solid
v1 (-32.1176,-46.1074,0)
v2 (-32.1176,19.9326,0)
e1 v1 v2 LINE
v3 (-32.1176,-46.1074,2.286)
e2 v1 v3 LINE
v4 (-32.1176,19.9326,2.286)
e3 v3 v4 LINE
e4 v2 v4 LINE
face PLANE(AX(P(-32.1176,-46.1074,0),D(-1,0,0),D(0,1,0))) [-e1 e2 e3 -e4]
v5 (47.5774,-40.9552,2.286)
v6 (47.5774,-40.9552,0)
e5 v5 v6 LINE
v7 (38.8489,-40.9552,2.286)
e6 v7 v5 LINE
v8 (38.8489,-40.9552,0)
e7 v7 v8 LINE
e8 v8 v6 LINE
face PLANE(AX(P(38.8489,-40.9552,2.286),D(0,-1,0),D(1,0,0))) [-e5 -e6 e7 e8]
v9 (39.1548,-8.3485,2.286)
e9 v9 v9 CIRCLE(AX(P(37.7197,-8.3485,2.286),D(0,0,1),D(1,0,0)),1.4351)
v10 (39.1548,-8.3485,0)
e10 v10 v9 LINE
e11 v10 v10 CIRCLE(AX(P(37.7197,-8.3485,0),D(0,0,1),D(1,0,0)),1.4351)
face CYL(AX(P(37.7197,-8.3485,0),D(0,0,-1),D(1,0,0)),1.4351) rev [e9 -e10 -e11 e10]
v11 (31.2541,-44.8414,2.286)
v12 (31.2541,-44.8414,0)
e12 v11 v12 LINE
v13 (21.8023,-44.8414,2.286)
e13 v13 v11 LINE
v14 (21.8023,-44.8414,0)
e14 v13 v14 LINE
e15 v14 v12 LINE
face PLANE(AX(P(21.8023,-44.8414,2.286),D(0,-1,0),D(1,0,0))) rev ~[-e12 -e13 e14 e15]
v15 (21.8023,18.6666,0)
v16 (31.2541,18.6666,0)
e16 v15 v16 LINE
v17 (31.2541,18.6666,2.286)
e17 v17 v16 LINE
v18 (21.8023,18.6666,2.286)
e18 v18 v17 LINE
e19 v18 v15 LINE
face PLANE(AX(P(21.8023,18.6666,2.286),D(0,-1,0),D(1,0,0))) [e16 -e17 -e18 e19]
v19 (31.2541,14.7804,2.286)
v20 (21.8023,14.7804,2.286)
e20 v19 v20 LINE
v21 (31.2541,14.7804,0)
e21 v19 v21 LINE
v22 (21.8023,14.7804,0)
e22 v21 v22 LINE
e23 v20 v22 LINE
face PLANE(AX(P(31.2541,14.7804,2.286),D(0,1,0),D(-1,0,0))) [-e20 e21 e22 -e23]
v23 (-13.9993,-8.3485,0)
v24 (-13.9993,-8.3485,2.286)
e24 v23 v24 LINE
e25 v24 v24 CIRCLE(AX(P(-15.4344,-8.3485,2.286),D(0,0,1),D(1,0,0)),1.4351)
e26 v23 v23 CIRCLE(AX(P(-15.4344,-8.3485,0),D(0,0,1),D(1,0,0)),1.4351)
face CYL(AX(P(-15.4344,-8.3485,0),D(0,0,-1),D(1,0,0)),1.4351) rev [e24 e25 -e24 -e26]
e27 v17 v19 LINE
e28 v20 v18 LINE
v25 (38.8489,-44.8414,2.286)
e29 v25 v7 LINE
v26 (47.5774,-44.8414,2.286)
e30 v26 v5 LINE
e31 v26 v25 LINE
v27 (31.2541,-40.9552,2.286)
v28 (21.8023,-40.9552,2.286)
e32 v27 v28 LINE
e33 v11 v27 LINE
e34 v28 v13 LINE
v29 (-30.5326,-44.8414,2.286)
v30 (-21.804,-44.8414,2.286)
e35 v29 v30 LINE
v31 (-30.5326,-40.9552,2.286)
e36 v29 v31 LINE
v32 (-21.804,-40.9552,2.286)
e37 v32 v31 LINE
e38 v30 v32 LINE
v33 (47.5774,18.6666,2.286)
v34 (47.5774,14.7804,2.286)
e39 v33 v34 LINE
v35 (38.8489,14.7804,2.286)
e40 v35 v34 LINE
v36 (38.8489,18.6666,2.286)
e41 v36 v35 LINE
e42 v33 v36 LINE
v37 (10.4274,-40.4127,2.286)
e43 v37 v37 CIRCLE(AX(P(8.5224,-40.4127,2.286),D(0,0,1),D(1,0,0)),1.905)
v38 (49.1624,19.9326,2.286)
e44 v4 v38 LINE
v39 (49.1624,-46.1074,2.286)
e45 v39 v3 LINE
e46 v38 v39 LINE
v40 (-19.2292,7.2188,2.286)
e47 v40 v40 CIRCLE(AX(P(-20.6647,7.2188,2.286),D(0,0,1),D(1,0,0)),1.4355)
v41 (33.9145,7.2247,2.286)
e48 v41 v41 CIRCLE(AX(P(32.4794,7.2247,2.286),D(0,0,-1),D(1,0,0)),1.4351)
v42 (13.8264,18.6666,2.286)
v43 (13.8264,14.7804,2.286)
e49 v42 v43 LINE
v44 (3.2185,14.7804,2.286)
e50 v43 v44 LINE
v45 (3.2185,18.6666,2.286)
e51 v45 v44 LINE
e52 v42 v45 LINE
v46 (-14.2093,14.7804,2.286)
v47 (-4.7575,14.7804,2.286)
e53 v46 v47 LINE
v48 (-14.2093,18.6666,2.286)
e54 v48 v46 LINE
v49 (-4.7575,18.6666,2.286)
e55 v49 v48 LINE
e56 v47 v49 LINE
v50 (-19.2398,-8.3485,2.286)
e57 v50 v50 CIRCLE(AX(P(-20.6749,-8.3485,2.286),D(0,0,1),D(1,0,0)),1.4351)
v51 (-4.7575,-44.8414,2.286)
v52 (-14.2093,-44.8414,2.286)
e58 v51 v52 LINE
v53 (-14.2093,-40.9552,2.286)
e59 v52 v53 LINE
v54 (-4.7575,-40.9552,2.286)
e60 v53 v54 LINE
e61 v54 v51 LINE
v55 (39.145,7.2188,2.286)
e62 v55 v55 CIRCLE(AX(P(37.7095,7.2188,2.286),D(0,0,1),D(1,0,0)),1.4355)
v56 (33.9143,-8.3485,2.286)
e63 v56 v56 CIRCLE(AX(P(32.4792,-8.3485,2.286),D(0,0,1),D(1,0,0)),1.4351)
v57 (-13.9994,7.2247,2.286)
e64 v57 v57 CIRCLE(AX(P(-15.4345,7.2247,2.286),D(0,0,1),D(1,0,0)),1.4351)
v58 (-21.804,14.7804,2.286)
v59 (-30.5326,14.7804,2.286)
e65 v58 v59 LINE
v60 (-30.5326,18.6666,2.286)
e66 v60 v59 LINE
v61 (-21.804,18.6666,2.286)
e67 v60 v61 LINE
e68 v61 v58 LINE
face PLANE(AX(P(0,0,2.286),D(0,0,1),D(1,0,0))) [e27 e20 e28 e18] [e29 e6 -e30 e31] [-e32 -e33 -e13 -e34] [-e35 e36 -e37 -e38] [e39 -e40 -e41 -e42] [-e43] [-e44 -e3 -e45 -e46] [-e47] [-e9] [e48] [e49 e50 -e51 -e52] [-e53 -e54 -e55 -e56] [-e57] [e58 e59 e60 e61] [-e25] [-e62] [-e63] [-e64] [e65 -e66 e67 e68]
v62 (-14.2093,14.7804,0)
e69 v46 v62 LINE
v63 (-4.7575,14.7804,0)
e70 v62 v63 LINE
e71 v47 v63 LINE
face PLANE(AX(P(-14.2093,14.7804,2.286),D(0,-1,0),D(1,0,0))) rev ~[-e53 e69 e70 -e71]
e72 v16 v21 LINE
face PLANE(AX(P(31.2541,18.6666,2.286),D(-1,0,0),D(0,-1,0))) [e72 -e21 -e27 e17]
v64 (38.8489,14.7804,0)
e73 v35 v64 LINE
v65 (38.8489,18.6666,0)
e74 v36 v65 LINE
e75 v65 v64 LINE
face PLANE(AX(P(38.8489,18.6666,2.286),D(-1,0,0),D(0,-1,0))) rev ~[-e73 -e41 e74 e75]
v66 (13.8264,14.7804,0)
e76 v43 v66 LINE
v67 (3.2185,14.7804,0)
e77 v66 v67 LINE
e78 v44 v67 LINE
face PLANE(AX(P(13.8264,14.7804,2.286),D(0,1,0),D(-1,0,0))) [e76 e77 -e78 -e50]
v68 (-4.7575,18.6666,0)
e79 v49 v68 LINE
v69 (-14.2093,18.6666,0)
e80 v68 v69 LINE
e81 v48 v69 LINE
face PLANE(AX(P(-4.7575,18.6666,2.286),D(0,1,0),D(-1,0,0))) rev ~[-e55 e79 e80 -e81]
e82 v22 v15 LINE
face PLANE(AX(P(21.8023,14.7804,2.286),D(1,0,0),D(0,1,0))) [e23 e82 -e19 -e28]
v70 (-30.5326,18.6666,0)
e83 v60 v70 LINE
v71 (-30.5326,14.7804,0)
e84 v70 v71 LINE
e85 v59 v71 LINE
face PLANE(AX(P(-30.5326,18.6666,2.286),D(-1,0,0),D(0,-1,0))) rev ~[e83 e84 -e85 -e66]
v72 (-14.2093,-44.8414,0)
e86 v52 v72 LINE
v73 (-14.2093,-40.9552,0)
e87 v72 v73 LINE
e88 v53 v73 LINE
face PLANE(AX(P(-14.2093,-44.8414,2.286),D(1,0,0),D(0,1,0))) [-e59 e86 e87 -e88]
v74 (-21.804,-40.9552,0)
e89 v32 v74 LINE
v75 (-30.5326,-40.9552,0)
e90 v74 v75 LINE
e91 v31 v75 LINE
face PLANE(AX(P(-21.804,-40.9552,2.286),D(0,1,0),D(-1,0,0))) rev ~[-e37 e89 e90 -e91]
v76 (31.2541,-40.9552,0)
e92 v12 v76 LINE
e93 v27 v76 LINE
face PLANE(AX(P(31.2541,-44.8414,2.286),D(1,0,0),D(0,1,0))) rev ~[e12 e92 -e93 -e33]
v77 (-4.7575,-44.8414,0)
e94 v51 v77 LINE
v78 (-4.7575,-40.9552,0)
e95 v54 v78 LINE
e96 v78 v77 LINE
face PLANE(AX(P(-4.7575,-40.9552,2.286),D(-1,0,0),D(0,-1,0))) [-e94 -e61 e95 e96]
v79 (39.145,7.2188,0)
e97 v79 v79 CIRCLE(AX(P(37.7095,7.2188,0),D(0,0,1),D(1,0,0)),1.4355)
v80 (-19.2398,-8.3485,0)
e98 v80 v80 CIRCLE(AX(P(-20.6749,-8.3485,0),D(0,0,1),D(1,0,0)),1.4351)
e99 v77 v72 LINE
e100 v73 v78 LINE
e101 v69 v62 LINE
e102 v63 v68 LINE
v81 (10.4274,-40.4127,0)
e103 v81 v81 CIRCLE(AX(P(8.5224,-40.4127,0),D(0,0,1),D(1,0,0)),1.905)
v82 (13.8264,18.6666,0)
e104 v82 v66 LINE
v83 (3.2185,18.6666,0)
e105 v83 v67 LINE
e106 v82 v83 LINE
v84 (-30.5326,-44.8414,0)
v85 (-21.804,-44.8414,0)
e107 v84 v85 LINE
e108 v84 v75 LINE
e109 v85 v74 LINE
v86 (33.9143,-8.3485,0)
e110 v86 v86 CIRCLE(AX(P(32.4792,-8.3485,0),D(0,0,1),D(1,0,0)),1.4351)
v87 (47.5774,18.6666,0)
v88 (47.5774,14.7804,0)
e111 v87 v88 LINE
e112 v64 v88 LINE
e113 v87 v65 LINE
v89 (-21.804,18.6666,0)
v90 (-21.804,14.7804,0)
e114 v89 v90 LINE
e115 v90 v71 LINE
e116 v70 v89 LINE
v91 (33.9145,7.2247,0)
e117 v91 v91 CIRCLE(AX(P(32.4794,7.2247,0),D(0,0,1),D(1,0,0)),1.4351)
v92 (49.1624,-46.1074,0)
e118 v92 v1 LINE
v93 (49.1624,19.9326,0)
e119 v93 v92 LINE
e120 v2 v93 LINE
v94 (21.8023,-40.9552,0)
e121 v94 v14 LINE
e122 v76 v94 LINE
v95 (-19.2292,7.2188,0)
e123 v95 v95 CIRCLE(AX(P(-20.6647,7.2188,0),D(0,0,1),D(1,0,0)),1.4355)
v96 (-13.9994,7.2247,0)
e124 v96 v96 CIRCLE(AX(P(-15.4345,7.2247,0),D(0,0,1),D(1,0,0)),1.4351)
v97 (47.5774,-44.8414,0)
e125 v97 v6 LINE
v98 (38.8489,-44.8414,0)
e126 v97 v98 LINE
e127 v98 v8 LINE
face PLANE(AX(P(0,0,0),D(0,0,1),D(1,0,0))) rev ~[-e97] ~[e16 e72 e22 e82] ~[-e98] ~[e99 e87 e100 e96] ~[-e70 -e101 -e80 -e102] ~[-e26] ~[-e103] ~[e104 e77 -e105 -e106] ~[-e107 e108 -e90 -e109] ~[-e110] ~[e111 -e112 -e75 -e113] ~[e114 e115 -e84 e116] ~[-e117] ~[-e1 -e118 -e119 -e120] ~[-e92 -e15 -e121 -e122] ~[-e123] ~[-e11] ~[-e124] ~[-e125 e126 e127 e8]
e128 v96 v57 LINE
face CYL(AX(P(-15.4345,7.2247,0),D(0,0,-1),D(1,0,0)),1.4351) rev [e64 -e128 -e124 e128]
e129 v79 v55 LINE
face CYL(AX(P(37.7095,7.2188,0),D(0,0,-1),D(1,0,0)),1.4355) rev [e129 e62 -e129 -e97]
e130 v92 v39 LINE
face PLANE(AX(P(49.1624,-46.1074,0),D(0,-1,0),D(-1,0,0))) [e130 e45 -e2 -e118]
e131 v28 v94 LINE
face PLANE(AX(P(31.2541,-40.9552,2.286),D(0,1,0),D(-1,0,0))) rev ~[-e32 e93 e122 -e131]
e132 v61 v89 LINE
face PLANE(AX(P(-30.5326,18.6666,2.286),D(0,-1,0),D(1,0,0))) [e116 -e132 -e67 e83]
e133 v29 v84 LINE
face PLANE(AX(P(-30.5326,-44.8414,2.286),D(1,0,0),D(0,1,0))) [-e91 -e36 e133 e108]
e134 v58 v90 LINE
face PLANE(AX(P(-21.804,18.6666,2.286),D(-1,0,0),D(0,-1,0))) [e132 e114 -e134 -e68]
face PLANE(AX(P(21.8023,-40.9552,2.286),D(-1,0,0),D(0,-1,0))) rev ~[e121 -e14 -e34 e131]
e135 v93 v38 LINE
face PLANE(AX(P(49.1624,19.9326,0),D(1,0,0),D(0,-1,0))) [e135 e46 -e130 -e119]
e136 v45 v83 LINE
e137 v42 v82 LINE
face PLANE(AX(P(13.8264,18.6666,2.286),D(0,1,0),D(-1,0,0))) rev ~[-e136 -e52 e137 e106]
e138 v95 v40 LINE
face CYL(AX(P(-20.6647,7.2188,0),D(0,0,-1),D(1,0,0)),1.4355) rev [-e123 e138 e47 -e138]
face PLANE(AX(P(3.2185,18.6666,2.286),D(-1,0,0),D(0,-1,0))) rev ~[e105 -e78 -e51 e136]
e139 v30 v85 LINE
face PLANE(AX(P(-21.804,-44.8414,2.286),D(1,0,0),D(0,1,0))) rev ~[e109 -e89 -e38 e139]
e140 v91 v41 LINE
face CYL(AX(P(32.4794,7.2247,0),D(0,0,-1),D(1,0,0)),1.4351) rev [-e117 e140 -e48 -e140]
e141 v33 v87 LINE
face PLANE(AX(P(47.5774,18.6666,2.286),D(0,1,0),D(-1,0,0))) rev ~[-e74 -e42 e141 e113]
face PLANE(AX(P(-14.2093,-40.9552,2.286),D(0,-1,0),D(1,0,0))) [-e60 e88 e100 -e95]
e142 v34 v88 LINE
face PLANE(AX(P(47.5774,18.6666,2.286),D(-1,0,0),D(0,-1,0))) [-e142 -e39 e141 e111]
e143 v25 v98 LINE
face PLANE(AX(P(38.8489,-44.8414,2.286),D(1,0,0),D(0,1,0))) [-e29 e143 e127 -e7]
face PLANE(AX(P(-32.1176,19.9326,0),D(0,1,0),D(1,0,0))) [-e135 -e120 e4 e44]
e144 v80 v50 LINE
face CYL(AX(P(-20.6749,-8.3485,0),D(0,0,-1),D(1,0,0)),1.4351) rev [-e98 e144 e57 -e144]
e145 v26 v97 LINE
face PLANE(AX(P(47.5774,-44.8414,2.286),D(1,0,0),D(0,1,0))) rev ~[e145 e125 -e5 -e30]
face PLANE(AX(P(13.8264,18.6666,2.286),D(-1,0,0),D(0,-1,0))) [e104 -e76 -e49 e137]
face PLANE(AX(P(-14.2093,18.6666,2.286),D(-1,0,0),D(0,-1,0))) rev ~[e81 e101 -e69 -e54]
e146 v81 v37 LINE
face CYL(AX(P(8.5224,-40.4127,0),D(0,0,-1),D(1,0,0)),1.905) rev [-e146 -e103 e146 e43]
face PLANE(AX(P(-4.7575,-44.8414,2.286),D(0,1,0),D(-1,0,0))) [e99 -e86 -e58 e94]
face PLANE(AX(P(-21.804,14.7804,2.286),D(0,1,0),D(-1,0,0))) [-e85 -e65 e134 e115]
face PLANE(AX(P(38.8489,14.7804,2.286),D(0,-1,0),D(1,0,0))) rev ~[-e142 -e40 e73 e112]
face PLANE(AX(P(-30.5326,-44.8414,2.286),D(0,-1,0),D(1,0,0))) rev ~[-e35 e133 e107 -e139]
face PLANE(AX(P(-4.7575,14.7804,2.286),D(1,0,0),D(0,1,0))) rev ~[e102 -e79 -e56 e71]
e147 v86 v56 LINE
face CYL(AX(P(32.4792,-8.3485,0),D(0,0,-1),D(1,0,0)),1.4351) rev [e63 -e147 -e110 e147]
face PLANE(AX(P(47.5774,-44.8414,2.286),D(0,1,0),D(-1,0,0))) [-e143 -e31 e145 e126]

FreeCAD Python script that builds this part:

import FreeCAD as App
import Part
import Sketcher

V = App.Vector
Q = App.Units.Quantity


def add_polygon(sketch, points):
    """Adds a closed chain of lines whose ends are joined by coincident constraints."""
    first, n = sketch.GeometryCount, len(points)
    for a, b in zip(points, points[1:] + points[:1]):
        sketch.addGeometry(Part.LineSegment(App.Vector(*a, 0), App.Vector(*b, 0)), False)
    for i in range(n):
        sketch.addConstraint(Sketcher.Constraint("Coincident", first + i, 2, first + (i + 1) % n, 1))

doc = App.newDocument("Part")
body = doc.addObject("PartDesign::Body", "Body")

sketch1 = doc.addObject("Sketcher::SketchObject", "Sketch")
body.addObject(sketch1)
sketch1.AttachmentSupport = (doc.XY_Plane, [""])
sketch1.MapMode = "FlatFace"
add_polygon(sketch1, [(49.2, 19.9), (-32.1, 19.9), (-32.1, -46.1), (49.2, -46.1)])
sketch1.addGeometry(Part.Circle(V(8.5, -40.4, 0), V(0, 0, 1), 1.9), False)
sketch1.addGeometry(Part.Circle(V(-20.7, -8.3, 0), V(0, 0, 1), 1.4), False)
sketch1.addGeometry(Part.Circle(V(-15.4, -8.3, 0), V(0, 0, 1), 1.4), False)
sketch1.addGeometry(Part.Circle(V(-20.7, 7.2, 0), V(0, 0, 1), 1.4), False)
sketch1.addGeometry(Part.Circle(V(-15.4, 7.2, 0), V(0, 0, 1), 1.4), False)
sketch1.addGeometry(Part.Circle(V(32.5, -8.3, 0), V(0, 0, 1), 1.4), False)
sketch1.addGeometry(Part.Circle(V(37.7, -8.3, 0), V(0, 0, 1), 1.4), False)
sketch1.addGeometry(Part.Circle(V(32.5, 7.2, 0), V(0, 0, 1), 1.4), False)
sketch1.addGeometry(Part.Circle(V(37.7, 7.2, 0), V(0, 0, 1), 1.4), False)
sketch1.addConstraint(Sketcher.Constraint("Horizontal", 0))
sketch1.addConstraint(Sketcher.Constraint("Vertical", 1))
sketch1.addConstraint(Sketcher.Constraint("Horizontal", 2))
sketch1.addConstraint(Sketcher.Constraint("Vertical", 3))
sketch1.addConstraint(Sketcher.Constraint("Equal", 5, 6))
sketch1.addConstraint(Sketcher.Constraint("Equal", 6, 8))
sketch1.addConstraint(Sketcher.Constraint("Equal", 8, 9))
sketch1.addConstraint(Sketcher.Constraint("Equal", 9, 10))
sketch1.addConstraint(Sketcher.Constraint("Equal", 10, 11))
sketch1.addConstraint(Sketcher.Constraint("Equal", 7, 12))
sketch1.addConstraint(Sketcher.Constraint("Horizontal", 5, 3, 6, 3))
sketch1.addConstraint(Sketcher.Constraint("Horizontal", 6, 3, 9, 3))
sketch1.addConstraint(Sketcher.Constraint("Horizontal", 9, 3, 10, 3))
sketch1.addConstraint(Sketcher.Constraint("Horizontal", 8, 3, 11, 3))
sketch1.addConstraint(Sketcher.Constraint("Horizontal", 7, 3, 12, 3))
sketch1.addConstraint(Sketcher.Constraint("Vertical", 6, 3, 8, 3))
sketch1.addConstraint(Sketcher.Constraint("Vertical", 9, 3, 11, 3))
sketch1.addConstraint(Sketcher.Constraint("Diameter", 4, Q("0.15 in")))
sketch1.addConstraint(Sketcher.Constraint("DistanceX", 0, 2, 0, 1, Q("3.2 in")))
sketch1.addConstraint(Sketcher.Constraint("DistanceY", 1, 2, 1, 1, Q("2.6 in")))
sketch1.addConstraint(Sketcher.Constraint("Diameter", 5, Q("0.113 in")))
sketch1.addConstraint(Sketcher.Constraint("DistanceX", 1, 2, 4, 3, Q("1.6 in")))
sketch1.addConstraint(Sketcher.Constraint("Diameter", 7, Q("2.871 mm")))
sketch1.addConstraint(Sketcher.Constraint("DistanceX", 5, 3, 10, 3, Q("2.299 in")))
sketch1.addConstraint(Sketcher.Constraint("DistanceY", -1, 1, 7, 3, Q("0.2842 in")))
sketch1.addConstraint(Sketcher.Constraint("DistanceX", -1, 1, 9, 3, Q("1.2787 in")))
sketch1.addConstraint(Sketcher.Constraint("DistanceX", 5, 3, 4, 3, Q("1.1495 in")))
sketch1.addConstraint(Sketcher.Constraint("DistanceX", 5, 3, 7, 3, Q("0.0004 in")))
sketch1.addConstraint(Sketcher.Constraint("DistanceY", 4, 3, 8, 3, Q("1.8755 in")))
sketch1.addConstraint(Sketcher.Constraint("DistanceX", 11, 3, 10, 3, Q("0.2063 in")))
sketch1.addConstraint(Sketcher.Constraint("DistanceX", 11, 3, 12, 3, Q("0.2059 in")))
sketch1.addConstraint(Sketcher.Constraint("DistanceY", 8, 3, 0, 2, Q("0.5003 in")))
sketch1.addConstraint(Sketcher.Constraint("DistanceY", 4, 3, -1, 1, Q("40.4127 mm")))
sketch1.addConstraint(Sketcher.Constraint("DistanceY", 5, 3, -1, 1, Q("8.3485 mm")))
sketch1.addConstraint(Sketcher.Constraint("DistanceX", 6, 3, -1, 1, Q("15.4344 mm")))
pad1 = doc.addObject("PartDesign::Pad", "Pad")
body.addObject(pad1)
pad1.Profile = sketch1
pad1.Length = Q("0.09 in")

sketch2 = doc.addObject("Sketcher::SketchObject", "Sketch001")
body.addObject(sketch2)
sketch2.AttachmentSupport = (doc.XY_Plane, [""])
sketch2.MapMode = "FlatFace"
sketch2.AttachmentOffset = App.Placement(V(0, 0, 0.09 * 25.4), App.Rotation())
add_polygon(sketch2, [(38.8, -44.8), (47.6, -44.8), (47.6, -41), (38.8, -41)])
add_polygon(sketch2, [(-30.5, -41), (-30.5, -44.8), (-21.8, -44.8), (-21.8, -41)])
add_polygon(sketch2, [(21.8, -44.8), (31.3, -44.8), (31.3, -41), (21.8, -41)])
add_polygon(sketch2, [(47.6, 14.8), (47.6, 18.7), (38.8, 18.7), (38.8, 14.8)])
add_polygon(sketch2, [(-21.8, 14.8), (-21.8, 18.7), (-30.5, 18.7), (-30.5, 14.8)])
add_polygon(sketch2, [(31.3, 14.8), (31.3, 18.7), (21.8, 18.7), (21.8, 14.8)])
add_polygon(sketch2, [(-14.2, -41), (-14.2, -44.8), (-4.8, -44.8), (-4.8, -41)])
add_polygon(sketch2, [(-14.2, 14.8), (-4.8, 14.8), (-4.8, 18.7), (-14.2, 18.7)])
add_polygon(sketch2, [(13.8, 14.8), (13.8, 18.7), (3.2, 18.7), (3.2, 14.8)])
sketch2.addConstraint(Sketcher.Constraint("Horizontal", 0))
sketch2.addConstraint(Sketcher.Constraint("Vertical", 1))
sketch2.addConstraint(Sketcher.Constraint("Horizontal", 2))
sketch2.addConstraint(Sketcher.Constraint("Vertical", 3))
sketch2.addConstraint(Sketcher.Constraint("Vertical", 4))
sketch2.addConstraint(Sketcher.Constraint("Horizontal", 5))
sketch2.addConstraint(Sketcher.Constraint("Vertical", 6))
sketch2.addConstraint(Sketcher.Constraint("Horizontal", 7))
sketch2.addConstraint(Sketcher.Constraint("Horizontal", 8))
sketch2.addConstraint(Sketcher.Constraint("Vertical", 9))
sketch2.addConstraint(Sketcher.Constraint("Horizontal", 10))
sketch2.addConstraint(Sketcher.Constraint("Vertical", 11))
sketch2.addConstraint(Sketcher.Constraint("Vertical", 12))
sketch2.addConstraint(Sketcher.Constraint("Horizontal", 13))
sketch2.addConstraint(Sketcher.Constraint("Vertical", 14))
sketch2.addConstraint(Sketcher.Constraint("Horizontal", 15))
sketch2.addConstraint(Sketcher.Constraint("Vertical", 16))
sketch2.addConstraint(Sketcher.Constraint("Horizontal", 17))
sketch2.addConstraint(Sketcher.Constraint("Vertical", 18))
sketch2.addConstraint(Sketcher.Constraint("Horizontal", 19))
sketch2.addConstraint(Sketcher.Constraint("Vertical", 20))
sketch2.addConstraint(Sketcher.Constraint("Horizontal", 21))
sketch2.addConstraint(Sketcher.Constraint("Vertical", 22))
sketch2.addConstraint(Sketcher.Constraint("Horizontal", 23))
sketch2.addConstraint(Sketcher.Constraint("Vertical", 24))
sketch2.addConstraint(Sketcher.Constraint("Horizontal", 25))
sketch2.addConstraint(Sketcher.Constraint("Vertical", 26))
sketch2.addConstraint(Sketcher.Constraint("Horizontal", 27))
sketch2.addConstraint(Sketcher.Constraint("Horizontal", 28))
sketch2.addConstraint(Sketcher.Constraint("Vertical", 29))
sketch2.addConstraint(Sketcher.Constraint("Horizontal", 30))
sketch2.addConstraint(Sketcher.Constraint("Vertical", 31))
sketch2.addConstraint(Sketcher.Constraint("Vertical", 32))
sketch2.addConstraint(Sketcher.Constraint("Horizontal", 33))
sketch2.addConstraint(Sketcher.Constraint("Vertical", 34))
sketch2.addConstraint(Sketcher.Constraint("Horizontal", 35))
sketch2.addConstraint(Sketcher.Constraint("Horizontal", 3, 2, 4, 2))
sketch2.addConstraint(Sketcher.Constraint("Horizontal", 2, 2, 6, 2))
sketch2.addConstraint(Sketcher.Constraint("Horizontal", 5, 2, 8, 2))
sketch2.addConstraint(Sketcher.Constraint("Horizontal", 7, 2, 9, 2))
sketch2.addConstraint(Sketcher.Constraint("Horizontal", 13, 2, 16, 2))
sketch2.addConstraint(Sketcher.Constraint("Horizontal", 15, 2, 18, 2))
sketch2.addConstraint(Sketcher.Constraint("Horizontal", 17, 2, 20, 2))
sketch2.addConstraint(Sketcher.Constraint("Horizontal", 19, 2, 22, 2))
sketch2.addConstraint(Sketcher.Constraint("Horizontal", 11, 2, 24, 2))
sketch2.addConstraint(Sketcher.Constraint("Horizontal", 10, 2, 26, 2))
sketch2.addConstraint(Sketcher.Constraint("Horizontal", 23, 2, 28, 2))
sketch2.addConstraint(Sketcher.Constraint("Horizontal", 21, 2, 29, 2))
sketch2.addConstraint(Sketcher.Constraint("Horizontal", 30, 2, 32, 2))
sketch2.addConstraint(Sketcher.Constraint("Horizontal", 31, 2, 34, 2))
sketch2.addConstraint(Sketcher.Constraint("Vertical", 1, 2, 12, 2))
sketch2.addConstraint(Sketcher.Constraint("Vertical", 3, 2, 13, 2))
sketch2.addConstraint(Sketcher.Constraint("Vertical", 6, 2, 16, 2))
sketch2.addConstraint(Sketcher.Constraint("Vertical", 7, 2, 17, 2))
sketch2.addConstraint(Sketcher.Constraint("Vertical", 9, 2, 20, 2))
sketch2.addConstraint(Sketcher.Constraint("Vertical", 11, 2, 21, 2))
sketch2.addConstraint(Sketcher.Constraint("Vertical", 26, 2, 28, 2))
sketch2.addConstraint(Sketcher.Constraint("Vertical", 27, 2, 30, 2))
sketch2.addConstraint(Sketcher.Constraint("Equal", 2, 5))
sketch2.addConstraint(Sketcher.Constraint("Equal", 23, 25))
sketch2.addConstraint(Sketcher.Constraint("Equal", 11, 12))
sketch2.addConstraint(Sketcher.Constraint("DistanceY", 1, 1, 1, 2, Q("0.153 in")))
sketch2.addConstraint(Sketcher.Constraint("DistanceX", 8, 2, 3, 2, Q("0.299 in")))
sketch2.addConstraint(Sketcher.Constraint("DistanceX", 5, 2, 24, 2, Q("0.299 in")))
sketch2.addConstraint(Sketcher.Constraint("DistanceX", 32, 2, 21, 2, Q("0.314 in")))
sketch2.addConstraint(Sketcher.Constraint("DistanceX", 0, 1, 0, 2, Q("8.7285 mm")))
sketch2.addConstraint(Sketcher.Constraint("DistanceX", 8, 1, 8, 2, Q("9.4518 mm")))
sketch2.addConstraint(Sketcher.Constraint("DistanceX", 33, 2, 33, 1, Q("10.608 mm")))
sketch2.addConstraint(Sketcher.Constraint("DistanceY", 0, 2, -1, 1, Q("1.7654 in")))
sketch2.addConstraint(Sketcher.Constraint("DistanceY", -1, 1, 12, 2, Q("0.7349 in")))
sketch2.addConstraint(Sketcher.Constraint("DistanceX", 25, 2, -1, 1, Q("0.1873 in")))
sketch2.addConstraint(Sketcher.Constraint("DistanceX", 4, 2, 0, 2, Q("3.0752 in")))
pocket1 = doc.addObject("PartDesign::Pocket", "Pocket")
body.addObject(pocket1)
pocket1.Profile = sketch2
pocket1.Type = "ThroughAll"

doc.recompute()
